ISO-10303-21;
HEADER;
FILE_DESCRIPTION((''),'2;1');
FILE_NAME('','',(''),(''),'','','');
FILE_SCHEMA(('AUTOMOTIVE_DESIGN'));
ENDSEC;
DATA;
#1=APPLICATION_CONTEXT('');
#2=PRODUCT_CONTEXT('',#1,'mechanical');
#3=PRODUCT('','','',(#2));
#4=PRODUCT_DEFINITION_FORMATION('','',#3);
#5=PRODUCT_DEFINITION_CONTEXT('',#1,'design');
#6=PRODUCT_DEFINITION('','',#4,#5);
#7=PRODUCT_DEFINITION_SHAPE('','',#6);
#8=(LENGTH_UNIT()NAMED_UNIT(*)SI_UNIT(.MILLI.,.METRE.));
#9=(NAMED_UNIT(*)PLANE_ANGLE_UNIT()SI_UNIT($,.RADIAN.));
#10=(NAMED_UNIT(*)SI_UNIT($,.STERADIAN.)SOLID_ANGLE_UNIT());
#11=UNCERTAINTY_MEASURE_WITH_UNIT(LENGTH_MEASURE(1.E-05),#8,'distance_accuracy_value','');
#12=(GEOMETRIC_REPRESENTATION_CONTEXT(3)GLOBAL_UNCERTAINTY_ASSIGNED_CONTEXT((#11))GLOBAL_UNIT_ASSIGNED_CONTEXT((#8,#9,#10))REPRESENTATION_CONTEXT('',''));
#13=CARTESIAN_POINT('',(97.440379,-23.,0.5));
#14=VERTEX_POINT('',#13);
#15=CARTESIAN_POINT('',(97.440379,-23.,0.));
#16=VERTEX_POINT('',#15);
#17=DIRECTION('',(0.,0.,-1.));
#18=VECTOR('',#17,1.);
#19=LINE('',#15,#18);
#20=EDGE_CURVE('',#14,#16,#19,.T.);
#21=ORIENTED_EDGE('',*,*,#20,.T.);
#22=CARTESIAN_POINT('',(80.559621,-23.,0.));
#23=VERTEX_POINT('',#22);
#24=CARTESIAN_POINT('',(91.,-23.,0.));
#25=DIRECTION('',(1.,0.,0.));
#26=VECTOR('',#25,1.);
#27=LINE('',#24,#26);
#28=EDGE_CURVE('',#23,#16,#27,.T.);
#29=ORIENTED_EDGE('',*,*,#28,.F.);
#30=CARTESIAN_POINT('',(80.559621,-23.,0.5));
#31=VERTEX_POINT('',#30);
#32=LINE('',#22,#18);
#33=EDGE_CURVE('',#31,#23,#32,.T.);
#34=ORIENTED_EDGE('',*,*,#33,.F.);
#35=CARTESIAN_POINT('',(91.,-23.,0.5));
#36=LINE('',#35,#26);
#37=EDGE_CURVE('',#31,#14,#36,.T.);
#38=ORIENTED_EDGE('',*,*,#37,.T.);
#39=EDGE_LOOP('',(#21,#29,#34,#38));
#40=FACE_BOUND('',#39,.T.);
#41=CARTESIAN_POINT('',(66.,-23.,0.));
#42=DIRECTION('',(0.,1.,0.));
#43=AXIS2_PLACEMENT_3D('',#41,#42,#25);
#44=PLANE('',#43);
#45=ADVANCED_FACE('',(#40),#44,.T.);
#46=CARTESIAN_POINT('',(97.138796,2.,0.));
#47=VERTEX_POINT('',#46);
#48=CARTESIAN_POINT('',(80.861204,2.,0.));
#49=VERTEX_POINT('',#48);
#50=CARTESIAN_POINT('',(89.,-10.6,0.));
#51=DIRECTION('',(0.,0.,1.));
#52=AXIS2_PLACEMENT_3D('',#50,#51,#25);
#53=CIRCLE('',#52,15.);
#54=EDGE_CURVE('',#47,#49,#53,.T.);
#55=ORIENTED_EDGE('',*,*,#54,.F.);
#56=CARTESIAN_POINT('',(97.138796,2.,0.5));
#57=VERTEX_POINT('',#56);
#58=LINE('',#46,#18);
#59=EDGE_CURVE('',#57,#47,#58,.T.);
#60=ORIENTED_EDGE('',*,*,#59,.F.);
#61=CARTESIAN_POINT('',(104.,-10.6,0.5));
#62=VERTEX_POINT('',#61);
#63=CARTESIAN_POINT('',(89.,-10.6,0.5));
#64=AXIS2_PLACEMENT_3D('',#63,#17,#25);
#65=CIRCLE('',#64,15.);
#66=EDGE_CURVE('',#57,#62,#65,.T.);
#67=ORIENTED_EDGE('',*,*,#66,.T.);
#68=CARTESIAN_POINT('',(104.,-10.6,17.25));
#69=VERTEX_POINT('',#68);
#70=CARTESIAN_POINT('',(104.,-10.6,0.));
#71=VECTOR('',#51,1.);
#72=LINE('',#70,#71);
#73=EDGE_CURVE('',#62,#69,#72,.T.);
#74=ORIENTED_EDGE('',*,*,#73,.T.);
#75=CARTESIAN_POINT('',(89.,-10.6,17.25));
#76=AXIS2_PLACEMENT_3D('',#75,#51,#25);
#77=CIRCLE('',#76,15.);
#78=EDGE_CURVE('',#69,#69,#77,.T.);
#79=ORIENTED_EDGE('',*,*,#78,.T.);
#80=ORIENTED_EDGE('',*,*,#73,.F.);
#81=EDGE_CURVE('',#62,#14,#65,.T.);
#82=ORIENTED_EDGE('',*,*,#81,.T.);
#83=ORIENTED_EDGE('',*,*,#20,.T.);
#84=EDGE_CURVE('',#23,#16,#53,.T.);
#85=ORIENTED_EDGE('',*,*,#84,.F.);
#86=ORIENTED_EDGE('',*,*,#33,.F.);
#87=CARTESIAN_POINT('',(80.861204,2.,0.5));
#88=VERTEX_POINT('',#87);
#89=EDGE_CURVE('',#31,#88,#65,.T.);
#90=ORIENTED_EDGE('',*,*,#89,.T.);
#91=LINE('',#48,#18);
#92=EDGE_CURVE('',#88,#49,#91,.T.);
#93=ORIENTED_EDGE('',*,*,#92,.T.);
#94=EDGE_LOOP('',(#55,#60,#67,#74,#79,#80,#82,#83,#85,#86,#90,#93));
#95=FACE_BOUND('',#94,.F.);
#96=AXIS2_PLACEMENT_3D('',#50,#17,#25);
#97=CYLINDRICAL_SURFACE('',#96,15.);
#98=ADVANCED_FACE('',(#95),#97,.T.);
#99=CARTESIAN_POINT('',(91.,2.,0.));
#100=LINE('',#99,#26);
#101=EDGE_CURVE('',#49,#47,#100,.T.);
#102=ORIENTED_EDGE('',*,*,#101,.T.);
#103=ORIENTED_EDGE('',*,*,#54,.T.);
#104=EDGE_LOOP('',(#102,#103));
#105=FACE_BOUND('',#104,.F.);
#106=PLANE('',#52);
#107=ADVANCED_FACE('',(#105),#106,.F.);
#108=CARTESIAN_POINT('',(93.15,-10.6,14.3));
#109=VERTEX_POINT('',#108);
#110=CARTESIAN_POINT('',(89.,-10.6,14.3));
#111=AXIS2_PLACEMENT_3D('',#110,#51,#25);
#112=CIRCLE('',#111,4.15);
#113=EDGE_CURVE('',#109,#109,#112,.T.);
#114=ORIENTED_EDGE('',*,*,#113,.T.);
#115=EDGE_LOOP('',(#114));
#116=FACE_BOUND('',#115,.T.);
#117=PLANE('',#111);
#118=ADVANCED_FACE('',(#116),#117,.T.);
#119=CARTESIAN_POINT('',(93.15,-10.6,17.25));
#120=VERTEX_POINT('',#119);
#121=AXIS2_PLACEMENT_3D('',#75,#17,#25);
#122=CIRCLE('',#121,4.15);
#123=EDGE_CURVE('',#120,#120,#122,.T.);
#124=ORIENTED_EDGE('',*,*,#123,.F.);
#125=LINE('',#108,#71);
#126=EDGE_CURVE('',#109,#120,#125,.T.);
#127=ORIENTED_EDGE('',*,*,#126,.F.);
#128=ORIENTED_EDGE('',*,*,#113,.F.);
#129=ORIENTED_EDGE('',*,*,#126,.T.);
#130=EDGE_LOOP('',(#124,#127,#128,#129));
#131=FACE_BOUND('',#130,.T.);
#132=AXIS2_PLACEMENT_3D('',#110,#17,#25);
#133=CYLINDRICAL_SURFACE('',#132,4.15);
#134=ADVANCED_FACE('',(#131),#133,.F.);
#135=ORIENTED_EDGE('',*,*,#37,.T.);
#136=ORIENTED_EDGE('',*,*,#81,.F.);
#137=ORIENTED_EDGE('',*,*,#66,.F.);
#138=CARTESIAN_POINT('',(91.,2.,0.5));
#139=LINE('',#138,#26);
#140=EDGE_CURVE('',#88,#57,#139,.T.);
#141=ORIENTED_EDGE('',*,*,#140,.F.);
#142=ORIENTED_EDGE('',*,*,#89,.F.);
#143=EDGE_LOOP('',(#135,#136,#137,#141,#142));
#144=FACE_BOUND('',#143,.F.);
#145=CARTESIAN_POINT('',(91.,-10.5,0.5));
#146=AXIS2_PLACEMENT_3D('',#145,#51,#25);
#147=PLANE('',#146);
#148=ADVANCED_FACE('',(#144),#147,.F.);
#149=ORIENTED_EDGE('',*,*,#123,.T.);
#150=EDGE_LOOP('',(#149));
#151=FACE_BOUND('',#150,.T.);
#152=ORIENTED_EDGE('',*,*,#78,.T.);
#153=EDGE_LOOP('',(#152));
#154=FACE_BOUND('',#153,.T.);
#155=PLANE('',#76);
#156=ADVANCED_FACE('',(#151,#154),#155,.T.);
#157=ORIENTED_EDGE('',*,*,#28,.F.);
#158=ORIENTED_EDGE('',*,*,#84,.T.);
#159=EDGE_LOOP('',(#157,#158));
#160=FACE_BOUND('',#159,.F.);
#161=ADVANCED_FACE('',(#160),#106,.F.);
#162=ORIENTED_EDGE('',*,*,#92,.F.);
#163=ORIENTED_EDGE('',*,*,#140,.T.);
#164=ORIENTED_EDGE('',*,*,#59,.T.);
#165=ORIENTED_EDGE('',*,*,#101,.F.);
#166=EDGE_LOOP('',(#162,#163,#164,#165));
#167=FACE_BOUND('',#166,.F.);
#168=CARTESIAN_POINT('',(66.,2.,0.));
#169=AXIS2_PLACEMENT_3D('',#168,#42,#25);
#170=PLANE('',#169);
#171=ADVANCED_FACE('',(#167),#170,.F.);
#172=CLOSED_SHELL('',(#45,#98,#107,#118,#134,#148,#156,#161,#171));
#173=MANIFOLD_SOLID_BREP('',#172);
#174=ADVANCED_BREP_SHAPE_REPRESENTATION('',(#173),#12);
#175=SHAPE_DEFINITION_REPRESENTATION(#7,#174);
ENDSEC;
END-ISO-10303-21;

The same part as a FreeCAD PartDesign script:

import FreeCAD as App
import Part
import Sketcher

V = App.Vector


def add_polygon(sketch, points):
    """Adds a closed chain of lines whose ends are joined by coincident constraints."""
    first, n = sketch.GeometryCount, len(points)
    for a, b in zip(points, points[1:] + points[:1]):
        sketch.addGeometry(Part.LineSegment(App.Vector(*a, 0), App.Vector(*b, 0)), False)
    for i in range(n):
        sketch.addConstraint(Sketcher.Constraint("Coincident", first + i, 2, first + (i + 1) % n, 1))

doc = App.newDocument("Part")
body = doc.addObject("PartDesign::Body", "Body")

sketch1 = doc.addObject("Sketcher::SketchObject", "Sketch")
body.addObject(sketch1)
sketch1.AttachmentSupport = (doc.XY_Plane, [""])
sketch1.MapMode = "FlatFace"
add_polygon(sketch1, [(66, 2), (66, -23), (116, -23), (116, 2)])
sketch1.addConstraint(Sketcher.Constraint("Vertical", 0))
sketch1.addConstraint(Sketcher.Constraint("Horizontal", 1))
sketch1.addConstraint(Sketcher.Constraint("Vertical", 2))
sketch1.addConstraint(Sketcher.Constraint("Horizontal", 3))
sketch1.addConstraint(Sketcher.Constraint("DistanceX", 1, 1, 1, 2, 50.0))
sketch1.addConstraint(Sketcher.Constraint("DistanceY", 0, 2, 0, 1, 25.0))
sketch1.addConstraint(Sketcher.Constraint("DistanceX", -1, 1, 0, 2, 66.0))
sketch1.addConstraint(Sketcher.Constraint("DistanceY", 0, 2, -1, 1, 23.0))
pad1 = doc.addObject("PartDesign::Pad", "Pad")
body.addObject(pad1)
pad1.Profile = sketch1
pad1.Length = 0.5
body2 = doc.addObject("PartDesign::Body", "Body001")

sketch2 = doc.addObject("Sketcher::SketchObject", "Sketch001")
body2.addObject(sketch2)
sketch2.AttachmentSupport = (doc.getObject("XZ_Plane001"), [""])
sketch2.MapMode = "FlatFace"
sketch2.AttachmentOffset = App.Placement(V(0, 0, 14.3), App.Rotation())
sketch2.addGeometry(Part.Circle(V(89, 10.4, 0), V(0, 0, 1), 4.2), False)
sketch2.addConstraint(Sketcher.Constraint("Diameter", 0, 8.3))
sketch2.addConstraint(Sketcher.Constraint("DistanceX", -1, 1, 0, 3, 89.0))
sketch2.addConstraint(Sketcher.Constraint("DistanceY", -1, 1, 0, 3, 10.4))
pad2 = doc.addObject("PartDesign::Pad", "Pad001")
body2.addObject(pad2)
pad2.Profile = sketch2
pad2.Length = 10
body3 = doc.addObject("PartDesign::Body", "Body002")

sketch3 = doc.addObject("Sketcher::SketchObject", "Sketch002")
body3.addObject(sketch3)
sketch3.AttachmentSupport = (doc.getObject("XZ_Plane002"), [""])
sketch3.MapMode = "FlatFace"
sketch3.addGeometry(Part.Circle(V(89, 10, 0), V(0, 0, 1), 15), False)
sketch3.addConstraint(Sketcher.Constraint("Diameter", 0, 30.0))
sketch3.addConstraint(Sketcher.Constraint("DistanceX", -1, 1, 0, 3, 89.0))
sketch3.addConstraint(Sketcher.Constraint("DistanceY", -1, 1, 0, 3, 10.4))
pad3 = doc.addObject("PartDesign::Pad", "Pad002")
body3.addObject(pad3)
pad3.Profile = sketch3
pad3.Length = 17.25
doc.recompute()

boolean = doc.addObject("PartDesign::Boolean", "Boolean")
body3.addObject(boolean)
boolean.Type = "Cut"
boolean.addObjects([body2])
body4 = doc.addObject("PartDesign::Body", "Body003")
doc.recompute()

body3.Placement = App.Placement(V(0, -21, 0), App.Rotation(V(-1, 0, 0), 90))
boolean2 = doc.addObject("PartDesign::Boolean", "Boolean001")
body4.addObject(boolean2)
boolean2.Type = "Fuse"
boolean2.addObjects([body3])
doc.recompute()

boolean3 = doc.addObject("PartDesign::Boolean", "Boolean002")
body4.addObject(boolean3)
boolean3.Type = "Cut"
boolean3.addObjects([body])

doc.recompute()
